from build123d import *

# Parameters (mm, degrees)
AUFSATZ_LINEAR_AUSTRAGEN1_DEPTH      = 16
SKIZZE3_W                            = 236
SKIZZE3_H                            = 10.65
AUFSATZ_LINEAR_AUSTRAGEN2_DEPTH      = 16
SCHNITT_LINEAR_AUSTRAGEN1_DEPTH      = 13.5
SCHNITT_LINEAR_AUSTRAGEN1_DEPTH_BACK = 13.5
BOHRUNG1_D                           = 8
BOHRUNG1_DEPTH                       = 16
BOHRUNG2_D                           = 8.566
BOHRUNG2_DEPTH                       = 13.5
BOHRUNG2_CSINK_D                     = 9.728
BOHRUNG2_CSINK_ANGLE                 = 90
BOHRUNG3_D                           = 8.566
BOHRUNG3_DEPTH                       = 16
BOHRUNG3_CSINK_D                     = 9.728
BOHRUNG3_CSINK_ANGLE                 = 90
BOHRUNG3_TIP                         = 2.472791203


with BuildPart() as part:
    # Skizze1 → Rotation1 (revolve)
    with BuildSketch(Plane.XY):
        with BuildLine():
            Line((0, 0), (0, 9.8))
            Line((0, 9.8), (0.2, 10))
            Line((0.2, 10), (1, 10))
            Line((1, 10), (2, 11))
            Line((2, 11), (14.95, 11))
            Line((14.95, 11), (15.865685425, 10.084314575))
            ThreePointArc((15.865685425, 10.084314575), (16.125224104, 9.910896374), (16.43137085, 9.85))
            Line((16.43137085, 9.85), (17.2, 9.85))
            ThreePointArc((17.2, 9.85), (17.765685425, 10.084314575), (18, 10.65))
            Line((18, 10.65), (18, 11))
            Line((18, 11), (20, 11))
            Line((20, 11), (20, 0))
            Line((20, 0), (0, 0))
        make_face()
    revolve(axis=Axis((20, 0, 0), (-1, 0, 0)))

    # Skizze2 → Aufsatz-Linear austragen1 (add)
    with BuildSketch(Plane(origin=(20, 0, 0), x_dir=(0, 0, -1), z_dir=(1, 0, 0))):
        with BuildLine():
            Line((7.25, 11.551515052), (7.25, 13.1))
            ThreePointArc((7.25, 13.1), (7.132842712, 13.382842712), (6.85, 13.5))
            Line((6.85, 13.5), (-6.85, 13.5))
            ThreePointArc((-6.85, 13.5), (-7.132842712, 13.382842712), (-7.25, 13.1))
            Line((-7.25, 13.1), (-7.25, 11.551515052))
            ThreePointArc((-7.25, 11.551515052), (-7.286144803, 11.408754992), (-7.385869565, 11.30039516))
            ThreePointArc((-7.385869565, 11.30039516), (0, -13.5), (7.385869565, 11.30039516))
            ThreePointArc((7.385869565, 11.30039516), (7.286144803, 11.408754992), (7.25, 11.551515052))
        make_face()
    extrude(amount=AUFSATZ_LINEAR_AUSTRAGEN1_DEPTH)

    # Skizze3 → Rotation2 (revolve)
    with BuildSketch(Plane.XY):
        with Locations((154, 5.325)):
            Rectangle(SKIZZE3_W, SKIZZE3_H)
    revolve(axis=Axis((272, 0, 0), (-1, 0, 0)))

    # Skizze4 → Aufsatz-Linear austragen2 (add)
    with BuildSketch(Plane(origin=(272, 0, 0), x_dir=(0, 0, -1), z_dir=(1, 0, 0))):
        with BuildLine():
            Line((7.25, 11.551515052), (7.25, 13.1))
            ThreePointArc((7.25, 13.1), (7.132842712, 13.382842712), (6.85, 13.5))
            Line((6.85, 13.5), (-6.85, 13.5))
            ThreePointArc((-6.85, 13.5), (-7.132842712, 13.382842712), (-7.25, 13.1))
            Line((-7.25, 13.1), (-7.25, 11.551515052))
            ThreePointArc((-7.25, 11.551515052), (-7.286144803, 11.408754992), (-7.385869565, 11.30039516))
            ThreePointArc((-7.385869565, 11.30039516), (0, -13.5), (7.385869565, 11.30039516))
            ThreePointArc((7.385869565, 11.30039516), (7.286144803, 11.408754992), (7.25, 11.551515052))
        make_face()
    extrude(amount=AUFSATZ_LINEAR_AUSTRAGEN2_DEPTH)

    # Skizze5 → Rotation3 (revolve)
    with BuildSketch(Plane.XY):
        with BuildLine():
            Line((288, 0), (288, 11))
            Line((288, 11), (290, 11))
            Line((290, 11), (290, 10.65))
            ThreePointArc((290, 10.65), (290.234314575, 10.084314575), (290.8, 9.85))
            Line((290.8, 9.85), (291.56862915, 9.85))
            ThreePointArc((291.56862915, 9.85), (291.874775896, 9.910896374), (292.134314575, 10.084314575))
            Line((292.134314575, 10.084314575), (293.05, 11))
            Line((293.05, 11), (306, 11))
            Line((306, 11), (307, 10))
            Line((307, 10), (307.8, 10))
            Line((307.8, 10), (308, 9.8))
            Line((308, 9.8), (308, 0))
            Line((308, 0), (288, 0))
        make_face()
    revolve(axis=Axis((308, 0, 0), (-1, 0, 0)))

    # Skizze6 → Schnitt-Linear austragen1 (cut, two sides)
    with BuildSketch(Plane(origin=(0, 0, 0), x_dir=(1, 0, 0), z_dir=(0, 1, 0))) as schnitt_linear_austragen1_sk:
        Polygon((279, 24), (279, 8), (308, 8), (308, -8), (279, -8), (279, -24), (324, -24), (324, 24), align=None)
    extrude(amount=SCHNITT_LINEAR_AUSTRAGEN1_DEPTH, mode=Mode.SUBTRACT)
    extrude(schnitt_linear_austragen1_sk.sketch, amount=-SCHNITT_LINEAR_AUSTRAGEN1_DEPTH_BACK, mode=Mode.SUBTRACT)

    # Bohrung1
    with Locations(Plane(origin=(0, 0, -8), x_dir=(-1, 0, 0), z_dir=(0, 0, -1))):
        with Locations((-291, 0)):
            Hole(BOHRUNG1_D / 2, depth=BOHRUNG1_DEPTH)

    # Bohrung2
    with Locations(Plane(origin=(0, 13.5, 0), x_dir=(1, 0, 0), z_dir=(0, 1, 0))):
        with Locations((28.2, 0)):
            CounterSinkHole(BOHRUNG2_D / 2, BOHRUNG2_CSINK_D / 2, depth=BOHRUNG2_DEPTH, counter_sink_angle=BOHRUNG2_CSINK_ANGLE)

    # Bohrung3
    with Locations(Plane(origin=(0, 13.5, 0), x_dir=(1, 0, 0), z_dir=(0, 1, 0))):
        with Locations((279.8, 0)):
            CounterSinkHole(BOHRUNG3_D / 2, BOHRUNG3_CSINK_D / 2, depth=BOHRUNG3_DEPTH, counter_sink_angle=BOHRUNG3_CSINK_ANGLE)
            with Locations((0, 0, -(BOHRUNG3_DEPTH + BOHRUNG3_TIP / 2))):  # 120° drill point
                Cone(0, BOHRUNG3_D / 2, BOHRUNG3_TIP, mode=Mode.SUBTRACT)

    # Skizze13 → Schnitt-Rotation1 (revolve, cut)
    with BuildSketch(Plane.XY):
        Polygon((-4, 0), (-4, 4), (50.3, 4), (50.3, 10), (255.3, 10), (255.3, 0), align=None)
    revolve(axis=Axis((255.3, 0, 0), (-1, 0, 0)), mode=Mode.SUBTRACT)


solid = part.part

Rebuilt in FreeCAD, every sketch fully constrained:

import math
import FreeCAD as App
import Part
import Sketcher

V = App.Vector
Q = App.Units.Quantity


def add_polygon(sketch, points):
    """Adds a closed chain of lines whose ends are joined by coincident constraints."""
    first, n = sketch.GeometryCount, len(points)
    for a, b in zip(points, points[1:] + points[:1]):
        sketch.addGeometry(Part.LineSegment(App.Vector(*a, 0), App.Vector(*b, 0)), False)
    for i in range(n):
        sketch.addConstraint(Sketcher.Constraint("Coincident", first + i, 2, first + (i + 1) % n, 1))

doc = App.newDocument("Part")
body = doc.addObject("PartDesign::Body", "Body")

# Sketch on XY plane
sketch1 = doc.addObject("Sketcher::SketchObject", "Sketch")
body.addObject(sketch1)
sketch1.AttachmentSupport = (doc.XY_Plane, [""])
sketch1.MapMode = "FlatFace"
sketch1.addGeometry(Part.LineSegment(V(0, 9.8, 0), V(0, 0, 0)), False)
sketch1.addGeometry(Part.LineSegment(V(0, 0, 0), V(20, 0, 0)), False)
sketch1.addGeometry(Part.LineSegment(V(20, 0, 0), V(20, 11, 0)), False)
sketch1.addGeometry(Part.LineSegment(V(20, 11, 0), V(18, 11, 0)), False)
sketch1.addGeometry(Part.LineSegment(V(18, 11, 0), V(18, 10.65, 0)), False)
sketch1.addGeometry(Part.ArcOfCircle(Part.Circle(V(17.2, 10.65, 0), V(0, 0, 1), 0.8), math.radians(-90), math.radians(0)), False)
sketch1.addGeometry(Part.LineSegment(V(17.2, 9.85, 0), V(16.431371, 9.85, 0)), False)
sketch1.addGeometry(Part.ArcOfCircle(Part.Circle(V(16.431371, 10.65, 0), V(0, 0, 1), 0.8), math.radians(-135), math.radians(-90)), False)
sketch1.addGeometry(Part.LineSegment(V(15.865685, 10.084315, 0), V(14.95, 11, 0)), False)
sketch1.addGeometry(Part.LineSegment(V(14.95, 11, 0), V(2, 11, 0)), False)
sketch1.addGeometry(Part.LineSegment(V(2, 11, 0), V(1, 10, 0)), False)
sketch1.addGeometry(Part.LineSegment(V(1, 10, 0), V(0.2, 10, 0)), False)
sketch1.addGeometry(Part.LineSegment(V(0.2, 10, 0), V(0, 9.8, 0)), False)
sketch1.addConstraint(Sketcher.Constraint("Coincident", 0, 2, 1, 1))
sketch1.addConstraint(Sketcher.Constraint("Coincident", 1, 2, 2, 1))
sketch1.addConstraint(Sketcher.Constraint("Coincident", 2, 2, 3, 1))
sketch1.addConstraint(Sketcher.Constraint("Coincident", 3, 2, 4, 1))
sketch1.addConstraint(Sketcher.Constraint("Tangent", 4, 2, 5, 2))
sketch1.addConstraint(Sketcher.Constraint("Tangent", 5, 1, 6, 1))
sketch1.addConstraint(Sketcher.Constraint("Tangent", 6, 2, 7, 2))
sketch1.addConstraint(Sketcher.Constraint("Tangent", 7, 1, 8, 1))
sketch1.addConstraint(Sketcher.Constraint("Coincident", 8, 2, 9, 1))
sketch1.addConstraint(Sketcher.Constraint("Coincident", 9, 2, 10, 1))
sketch1.addConstraint(Sketcher.Constraint("Coincident", 10, 2, 11, 1))
sketch1.addConstraint(Sketcher.Constraint("Coincident", 11, 2, 12, 1))
sketch1.addConstraint(Sketcher.Constraint("Coincident", 12, 2, 0, 1))
sketch1.addConstraint(Sketcher.Constraint("Vertical", 0))
sketch1.addConstraint(Sketcher.Constraint("Horizontal", 1))
sketch1.addConstraint(Sketcher.Constraint("Vertical", 2))
sketch1.addConstraint(Sketcher.Constraint("Horizontal", 3))
sketch1.addConstraint(Sketcher.Constraint("Vertical", 4))
sketch1.addConstraint(Sketcher.Constraint("Horizontal", 6))
sketch1.addConstraint(Sketcher.Constraint("Horizontal", 9))
sketch1.addConstraint(Sketcher.Constraint("Horizontal", 11))
sketch1.addConstraint(Sketcher.Constraint("Coincident", 0, 2, -1, 1))
sketch1.addConstraint(Sketcher.Constraint("Equal", 5, 7))
sketch1.addConstraint(Sketcher.Constraint("Perpendicular", 8, 10))
sketch1.addConstraint(Sketcher.Constraint("Parallel", 10, 12))
sketch1.addConstraint(Sketcher.Constraint("Horizontal", 3, 2, 8, 2))
sketch1.addConstraint(Sketcher.Constraint("Radius", 5, 0.8))
sketch1.addConstraint(Sketcher.Constraint("DistanceX", 1, 1, 1, 2, 20.0))
sketch1.addConstraint(Sketcher.Constraint("DistanceX", 3, 2, 3, 1, 2.0))
sketch1.addConstraint(Sketcher.Constraint("DistanceY", 2, 1, 2, 2, 11.0))
sketch1.addConstraint(Sketcher.Constraint("Angle", 8, Q("135 deg")))
sketch1.addConstraint(Sketcher.Constraint("DistanceX", 11, 2, 11, 1, 0.8))
sketch1.addConstraint(Sketcher.Constraint("DistanceY", 0, 2, 0, 1, 9.8))
sketch1.addConstraint(Sketcher.Constraint("DistanceX", -1, 1, 10, 2, 1.0))
sketch1.addConstraint(Sketcher.Constraint("DistanceX", 9, 2, 9, 1, 12.95))
sketch1.addConstraint(Sketcher.Constraint("DistanceY", 4, 2, 4, 1, 0.35))
revolution = doc.addObject("PartDesign::Revolution", "Revolution")
body.addObject(revolution)
revolution.Profile = sketch1
revolution.ReferenceAxis = (sketch1, ["H_Axis"])
revolution.Angle = 360

# Sketch on YZ plane
sketch2 = doc.addObject("Sketcher::SketchObject", "Sketch001")
body.addObject(sketch2)
sketch2.AttachmentSupport = (doc.YZ_Plane, [""])
sketch2.MapMode = "FlatFace"
sketch2.AttachmentOffset = App.Placement(V(0, 0, 20), App.Rotation())
sketch2.addGeometry(Part.LineSegment(V(11.551515, -7.25, 0), V(13.1, -7.25, 0)), False)
sketch2.addGeometry(Part.ArcOfCircle(Part.Circle(V(13.1, -6.85, 0), V(0, 0, 1), 0.4), math.radians(-90), math.radians(0)), False)
sketch2.addGeometry(Part.LineSegment(V(13.5, -6.85, 0), V(13.5, 6.85, 0)), False)
sketch2.addGeometry(Part.ArcOfCircle(Part.Circle(V(13.1, 6.85, 0), V(0, 0, 1), 0.4), math.radians(0), math.radians(90)), False)
sketch2.addGeometry(Part.LineSegment(V(13.1, 7.25, 0), V(11.551515, 7.25, 0)), False)
sketch2.addGeometry(Part.ArcOfCircle(Part.Circle(V(11.551515, 7.55, 0), V(0, 0, 1), 0.3), math.radians(-146.831613), math.radians(-90)), False)
sketch2.addGeometry(Part.ArcOfCircle(Part.Circle(V(0, 0, 0), V(0, 0, 1), 13.5), math.radians(33.168387), math.radians(326.831613)), False)
sketch2.addGeometry(Part.ArcOfCircle(Part.Circle(V(11.551515, -7.55, 0), V(0, 0, 1), 0.3), math.radians(90), math.radians(146.831613)), False)
sketch2.addConstraint(Sketcher.Constraint("Tangent", 0, 2, 1, 1))
sketch2.addConstraint(Sketcher.Constraint("Tangent", 1, 2, 2, 1))
sketch2.addConstraint(Sketcher.Constraint("Tangent", 2, 2, 3, 1))
sketch2.addConstraint(Sketcher.Constraint("Tangent", 3, 2, 4, 1))
sketch2.addConstraint(Sketcher.Constraint("Tangent", 4, 2, 5, 2))
sketch2.addConstraint(Sketcher.Constraint("Tangent", 5, 1, 6, 1))
sketch2.addConstraint(Sketcher.Constraint("Tangent", 6, 2, 7, 2))
sketch2.addConstraint(Sketcher.Constraint("Tangent", 7, 1, 0, 1))
sketch2.addConstraint(Sketcher.Constraint("Horizontal", 0))
sketch2.addConstraint(Sketcher.Constraint("Vertical", 2))
sketch2.addConstraint(Sketcher.Constraint("Horizontal", 4))
sketch2.addConstraint(Sketcher.Constraint("Coincident", 6, 3, -1, 1))
sketch2.addConstraint(Sketcher.Constraint("Equal", 1, 3))
sketch2.addConstraint(Sketcher.Constraint("Equal", 5, 7))
sketch2.addConstraint(Sketcher.Constraint("Vertical", 5, 3, 7, 3))
sketch2.addConstraint(Sketcher.Constraint("Radius", 1, 0.4))
sketch2.addConstraint(Sketcher.Constraint("Radius", 5, 0.3))
sketch2.addConstraint(Sketcher.Constraint("Radius", 6, 13.5))
sketch2.addConstraint(Sketcher.Constraint("DistanceY", 2, 1, 2, 2, 13.7))
sketch2.addConstraint(Sketcher.Constraint("DistanceX", -1, 1, 1, 3, 13.1))
pad1 = doc.addObject("PartDesign::Pad", "Pad")
body.addObject(pad1)
pad1.Profile = sketch2
pad1.Length = 16

# Sketch on XY plane
sketch3 = doc.addObject("Sketcher::SketchObject", "Sketch002")
body.addObject(sketch3)
sketch3.AttachmentSupport = (doc.XY_Plane, [""])
sketch3.MapMode = "FlatFace"
add_polygon(sketch3, [(36, 10.65), (36, 0), (272, 0), (272, 10.65)])  # lines 0-3
sketch3.addConstraint(Sketcher.Constraint("Vertical", 0))
sketch3.addConstraint(Sketcher.Constraint("Horizontal", 1))
sketch3.addConstraint(Sketcher.Constraint("Vertical", 2))
sketch3.addConstraint(Sketcher.Constraint("Horizontal", 3))
sketch3.addConstraint(Sketcher.Constraint("PointOnObject", 0, 2, -1))
sketch3.addConstraint(Sketcher.Constraint("DistanceX", 1, 1, 1, 2, 236.0))
sketch3.addConstraint(Sketcher.Constraint("DistanceX", -1, 1, 0, 2, 36.0))
sketch3.addConstraint(Sketcher.Constraint("DistanceY", 0, 2, 0, 1, 10.65))
revolution2 = doc.addObject("PartDesign::Revolution", "Revolution001")
body.addObject(revolution2)
revolution2.Profile = sketch3
revolution2.ReferenceAxis = (sketch3, ["H_Axis"])
revolution2.Angle = 360

# Sketch on YZ plane
sketch4 = doc.addObject("Sketcher::SketchObject", "Sketch003")
body.addObject(sketch4)
sketch4.AttachmentSupport = (doc.YZ_Plane, [""])
sketch4.MapMode = "FlatFace"
sketch4.AttachmentOffset = App.Placement(V(0, 0, 272), App.Rotation())
sketch4.addGeometry(Part.LineSegment(V(11.551515, -7.25, 0), V(13.1, -7.25, 0)), False)
sketch4.addGeometry(Part.ArcOfCircle(Part.Circle(V(13.1, -6.85, 0), V(0, 0, 1), 0.4), math.radians(-90), math.radians(0)), False)
sketch4.addGeometry(Part.LineSegment(V(13.5, -6.85, 0), V(13.5, 6.85, 0)), False)
sketch4.addGeometry(Part.ArcOfCircle(Part.Circle(V(13.1, 6.85, 0), V(0, 0, 1), 0.4), math.radians(0), math.radians(90)), False)
sketch4.addGeometry(Part.LineSegment(V(13.1, 7.25, 0), V(11.551515, 7.25, 0)), False)
sketch4.addGeometry(Part.ArcOfCircle(Part.Circle(V(11.551515, 7.55, 0), V(0, 0, 1), 0.3), math.radians(-146.831613), math.radians(-90)), False)
sketch4.addGeometry(Part.ArcOfCircle(Part.Circle(V(0, 0, 0), V(0, 0, 1), 13.5), math.radians(33.168387), math.radians(326.831613)), False)
sketch4.addGeometry(Part.ArcOfCircle(Part.Circle(V(11.551515, -7.55, 0), V(0, 0, 1), 0.3), math.radians(90), math.radians(146.831613)), False)
sketch4.addConstraint(Sketcher.Constraint("Tangent", 0, 2, 1, 1))
sketch4.addConstraint(Sketcher.Constraint("Tangent", 1, 2, 2, 1))
sketch4.addConstraint(Sketcher.Constraint("Tangent", 2, 2, 3, 1))
sketch4.addConstraint(Sketcher.Constraint("Tangent", 3, 2, 4, 1))
sketch4.addConstraint(Sketcher.Constraint("Tangent", 4, 2, 5, 2))
sketch4.addConstraint(Sketcher.Constraint("Tangent", 5, 1, 6, 1))
sketch4.addConstraint(Sketcher.Constraint("Tangent", 6, 2, 7, 2))
sketch4.addConstraint(Sketcher.Constraint("Tangent", 7, 1, 0, 1))
sketch4.addConstraint(Sketcher.Constraint("Horizontal", 0))
sketch4.addConstraint(Sketcher.Constraint("Vertical", 2))
sketch4.addConstraint(Sketcher.Constraint("Horizontal", 4))
sketch4.addConstraint(Sketcher.Constraint("Coincident", 6, 3, -1, 1))
sketch4.addConstraint(Sketcher.Constraint("Equal", 1, 3))
sketch4.addConstraint(Sketcher.Constraint("Equal", 5, 7))
sketch4.addConstraint(Sketcher.Constraint("Vertical", 5, 3, 7, 3))
sketch4.addConstraint(Sketcher.Constraint("Radius", 1, 0.4))
sketch4.addConstraint(Sketcher.Constraint("Radius", 5, 0.3))
sketch4.addConstraint(Sketcher.Constraint("Radius", 6, 13.5))
sketch4.addConstraint(Sketcher.Constraint("DistanceY", 2, 1, 2, 2, 13.7))
sketch4.addConstraint(Sketcher.Constraint("DistanceX", -1, 1, 1, 3, 13.1))
pad2 = doc.addObject("PartDesign::Pad", "Pad001")
body.addObject(pad2)
pad2.Profile = sketch4
pad2.Length = 16

# Sketch on XY plane
sketch5 = doc.addObject("Sketcher::SketchObject", "Sketch004")
body.addObject(sketch5)
sketch5.AttachmentSupport = (doc.XY_Plane, [""])
sketch5.MapMode = "FlatFace"
sketch5.addGeometry(Part.LineSegment(V(288, 11, 0), V(288, 0, 0)), False)
sketch5.addGeometry(Part.LineSegment(V(288, 0, 0), V(308, 0, 0)), False)
sketch5.addGeometry(Part.LineSegment(V(308, 0, 0), V(308, 9.8, 0)), False)
sketch5.addGeometry(Part.LineSegment(V(308, 9.8, 0), V(307.8, 10, 0)), False)
sketch5.addGeometry(Part.LineSegment(V(307.8, 10, 0), V(307, 10, 0)), False)
sketch5.addGeometry(Part.LineSegment(V(307, 10, 0), V(306, 11, 0)), False)
sketch5.addGeometry(Part.LineSegment(V(306, 11, 0), V(293.05, 11, 0)), False)
sketch5.addGeometry(Part.LineSegment(V(293.05, 11, 0), V(292.134315, 10.084315, 0)), False)
sketch5.addGeometry(Part.ArcOfCircle(Part.Circle(V(291.568629, 10.65, 0), V(0, 0, 1), 0.8), math.radians(-90), math.radians(-45)), False)
sketch5.addGeometry(Part.LineSegment(V(291.568629, 9.85, 0), V(290.8, 9.85, 0)), False)
sketch5.addGeometry(Part.ArcOfCircle(Part.Circle(V(290.8, 10.65, 0), V(0, 0, 1), 0.8), math.radians(180), math.radians(270)), False)
sketch5.addGeometry(Part.LineSegment(V(290, 10.65, 0), V(290, 11, 0)), False)
sketch5.addGeometry(Part.LineSegment(V(290, 11, 0), V(288, 11, 0)), False)
sketch5.addConstraint(Sketcher.Constraint("Coincident", 0, 2, 1, 1))
sketch5.addConstraint(Sketcher.Constraint("Coincident", 1, 2, 2, 1))
sketch5.addConstraint(Sketcher.Constraint("Coincident", 2, 2, 3, 1))
sketch5.addConstraint(Sketcher.Constraint("Coincident", 3, 2, 4, 1))
sketch5.addConstraint(Sketcher.Constraint("Coincident", 4, 2, 5, 1))
sketch5.addConstraint(Sketcher.Constraint("Coincident", 5, 2, 6, 1))
sketch5.addConstraint(Sketcher.Constraint("Coincident", 6, 2, 7, 1))
sketch5.addConstraint(Sketcher.Constraint("Tangent", 7, 2, 8, 2))
sketch5.addConstraint(Sketcher.Constraint("Tangent", 8, 1, 9, 1))
sketch5.addConstraint(Sketcher.Constraint("Tangent", 9, 2, 10, 2))
sketch5.addConstraint(Sketcher.Constraint("Tangent", 10, 1, 11, 1))
sketch5.addConstraint(Sketcher.Constraint("Coincident", 11, 2, 12, 1))
sketch5.addConstraint(Sketcher.Constraint("Coincident", 12, 2, 0, 1))
sketch5.addConstraint(Sketcher.Constraint("Vertical", 0))
sketch5.addConstraint(Sketcher.Constraint("Horizontal", 1))
sketch5.addConstraint(Sketcher.Constraint("Vertical", 2))
sketch5.addConstraint(Sketcher.Constraint("Horizontal", 4))
sketch5.addConstraint(Sketcher.Constraint("Horizontal", 6))
sketch5.addConstraint(Sketcher.Constraint("Horizontal", 9))
sketch5.addConstraint(Sketcher.Constraint("Vertical", 11))
sketch5.addConstraint(Sketcher.Constraint("Horizontal", 12))
sketch5.addConstraint(Sketcher.Constraint("Equal", 8, 10))
sketch5.addConstraint(Sketcher.Constraint("PointOnObject", 0, 2, -1))
sketch5.addConstraint(Sketcher.Constraint("Parallel", 3, 5))
sketch5.addConstraint(Sketcher.Constraint("Perpendicular", 5, 7))
sketch5.addConstraint(Sketcher.Constraint("Horizontal", 6, 2, 11, 2))
sketch5.addConstraint(Sketcher.Constraint("Radius", 8, 0.8))
sketch5.addConstraint(Sketcher.Constraint("DistanceX", 1, 1, 1, 2, 20.0))
sketch5.addConstraint(Sketcher.Constraint("DistanceX", 12, 2, 12, 1, 2.0))
sketch5.addConstraint(Sketcher.Constraint("DistanceY", 0, 2, 0, 1, 11.0))
sketch5.addConstraint(Sketcher.Constraint("Angle", 3, Q("135 deg")))
sketch5.addConstraint(Sketcher.Constraint("DistanceX", 4, 2, 4, 1, 0.8))
sketch5.addConstraint(Sketcher.Constraint("DistanceY", 2, 1, 2, 2, 9.8))
sketch5.addConstraint(Sketcher.Constraint("DistanceX", -1, 1, 0, 2, 288.0))
sketch5.addConstraint(Sketcher.Constraint("DistanceY", -1, 1, 3, 2, 10.0))
sketch5.addConstraint(Sketcher.Constraint("DistanceX", 6, 2, 6, 1, 12.95))
sketch5.addConstraint(Sketcher.Constraint("DistanceY", 11, 1, 11, 2, 0.35))
revolution3 = doc.addObject("PartDesign::Revolution", "Revolution002")
body.addObject(revolution3)
revolution3.Profile = sketch5
revolution3.ReferenceAxis = (sketch5, ["H_Axis"])
revolution3.Angle = 360

# Sketch on XZ plane
sketch6 = doc.addObject("Sketcher::SketchObject", "Sketch005")
body.addObject(sketch6)
sketch6.AttachmentSupport = (doc.XZ_Plane, [""])
sketch6.MapMode = "FlatFace"
add_polygon(sketch6, [(279, -24), (279, -8), (308, -8), (308, 8), (279, 8), (279, 24), (324, 24), (324, -24)])  # lines 0-7
sketch6.addConstraint(Sketcher.Constraint("Vertical", 0))
sketch6.addConstraint(Sketcher.Constraint("Horizontal", 1))
sketch6.addConstraint(Sketcher.Constraint("Vertical", 2))
sketch6.addConstraint(Sketcher.Constraint("Horizontal", 3))
sketch6.addConstraint(Sketcher.Constraint("Vertical", 4))
sketch6.addConstraint(Sketcher.Constraint("Horizontal", 5))
sketch6.addConstraint(Sketcher.Constraint("Vertical", 6))
sketch6.addConstraint(Sketcher.Constraint("Horizontal", 7))
sketch6.addConstraint(Sketcher.Constraint("Symmetric", 0, 2, 3, 2, -1))
sketch6.addConstraint(Sketcher.Constraint("Equal", 0, 2))
sketch6.addConstraint(Sketcher.Constraint("Equal", 2, 4))
sketch6.addConstraint(Sketcher.Constraint("DistanceX", 1, 1, 1, 2, 29.0))
sketch6.addConstraint(Sketcher.Constraint("DistanceX", 5, 1, 5, 2, 45.0))
sketch6.addConstraint(Sketcher.Constraint("DistanceY", 0, 1, 0, 2, 16.0))
sketch6.addConstraint(Sketcher.Constraint("DistanceX", -1, 1, 0, 2, 279.0))
pocket1 = doc.addObject("PartDesign::Pocket", "Pocket")
body.addObject(pocket1)
pocket1.Profile = sketch6
pocket1.Type = "ThroughAll"
pocket1.Midplane = True

# Sketch on XY plane
sketch7 = doc.addObject("Sketcher::SketchObject", "Sketch006")
body.addObject(sketch7)
sketch7.AttachmentSupport = (doc.XY_Plane, [""])
sketch7.MapMode = "FlatFace"
sketch7.AttachmentOffset = App.Placement(V(0, 0, -8), App.Rotation())
sketch7.addGeometry(Part.Circle(V(291, 0, 0), V(0, 0, 1), 4), False)
sketch7.addConstraint(Sketcher.Constraint("PointOnObject", 0, 3, -1))
sketch7.addConstraint(Sketcher.Constraint("Diameter", 0, 8.0))
sketch7.addConstraint(Sketcher.Constraint("DistanceX", -1, 1, 0, 3, 291.0))
doc.recompute()
hole = doc.addObject("PartDesign::Hole", "Hole")
body.addObject(hole)
hole.Profile = sketch7
hole.ThreadType = "None"
hole.Diameter = 8
hole.DepthType = "Dimension"
hole.Depth = 16
hole.DrillPoint = "Flat"
hole.Reversed = True

# Sketch on XZ plane
sketch8 = doc.addObject("Sketcher::SketchObject", "Sketch007")
body.addObject(sketch8)
sketch8.AttachmentSupport = (doc.XZ_Plane, [""])
sketch8.MapMode = "FlatFace"
sketch8.AttachmentOffset = App.Placement(V(0, 0, -13.5), App.Rotation())
sketch8.addGeometry(Part.Circle(V(28.2, 0, 0), V(0, 0, 1), 4.283), False)
sketch8.addConstraint(Sketcher.Constraint("PointOnObject", 0, 3, -1))
sketch8.addConstraint(Sketcher.Constraint("Diameter", 0, 8.566))
sketch8.addConstraint(Sketcher.Constraint("DistanceX", -1, 1, 0, 3, 28.2))
doc.recompute()
hole2 = doc.addObject("PartDesign::Hole", "Hole001")
body.addObject(hole2)
hole2.Profile = sketch8
hole2.ThreadType = "None"
hole2.Diameter = 8.566
hole2.DepthType = "Dimension"
hole2.Depth = 13.5
hole2.DrillPoint = "Flat"
hole2.HoleCutType = "Countersink"
hole2.HoleCutDiameter = 9.728
hole2.HoleCutCountersinkAngle = 90
hole2.Reversed = True

# Sketch on XZ plane
sketch9 = doc.addObject("Sketcher::SketchObject", "Sketch008")
body.addObject(sketch9)
sketch9.AttachmentSupport = (doc.XZ_Plane, [""])
sketch9.MapMode = "FlatFace"
sketch9.AttachmentOffset = App.Placement(V(0, 0, -13.5), App.Rotation())
sketch9.addGeometry(Part.Circle(V(279.8, 0, 0), V(0, 0, 1), 4.283), False)
sketch9.addConstraint(Sketcher.Constraint("PointOnObject", 0, 3, -1))
sketch9.addConstraint(Sketcher.Constraint("Diameter", 0, 8.566))
sketch9.addConstraint(Sketcher.Constraint("DistanceX", -1, 1, 0, 3, 279.8))
doc.recompute()
hole3 = doc.addObject("PartDesign::Hole", "Hole002")
body.addObject(hole3)
hole3.Profile = sketch9
hole3.ThreadType = "None"
hole3.Diameter = 8.566
hole3.DepthType = "Dimension"
hole3.Depth = 16
hole3.DrillPoint = "Angled"
hole3.DrillPointAngle = 120
hole3.HoleCutType = "Countersink"
hole3.HoleCutDiameter = 9.728
hole3.HoleCutCountersinkAngle = 90
hole3.Reversed = True

# Sketch on XY plane
sketch10 = doc.addObject("Sketcher::SketchObject", "Sketch009")
body.addObject(sketch10)
sketch10.AttachmentSupport = (doc.XY_Plane, [""])
sketch10.MapMode = "FlatFace"
add_polygon(sketch10, [(-4, 4), (-4, 0), (255.3, 0), (255.3, 10), (50.3, 10), (50.3, 4)])  # lines 0-5
sketch10.addConstraint(Sketcher.Constraint("Vertical", 0))
sketch10.addConstraint(Sketcher.Constraint("Horizontal", 1))
sketch10.addConstraint(Sketcher.Constraint("Vertical", 2))
sketch10.addConstraint(Sketcher.Constraint("Horizontal", 3))
sketch10.addConstraint(Sketcher.Constraint("Vertical", 4))
sketch10.addConstraint(Sketcher.Constraint("Horizontal", 5))
sketch10.addConstraint(Sketcher.Constraint("PointOnObject", 0, 2, -1))
sketch10.addConstraint(Sketcher.Constraint("DistanceX", 3, 2, 3, 1, 205.0))
sketch10.addConstraint(Sketcher.Constraint("DistanceY", 0, 2, 0, 1, 4.0))
sketch10.addConstraint(Sketcher.Constraint("DistanceY", 2, 1, 2, 2, 10.0))
sketch10.addConstraint(Sketcher.Constraint("DistanceX", 1, 1, 1, 2, 259.3))
sketch10.addConstraint(Sketcher.Constraint("DistanceX", 0, 2, -1, 1, 4.0))
groove = doc.addObject("PartDesign::Groove", "Groove")
body.addObject(groove)
groove.Profile = sketch10
groove.ReferenceAxis = (sketch10, ["H_Axis"])
groove.Angle = 360

doc.recompute()
